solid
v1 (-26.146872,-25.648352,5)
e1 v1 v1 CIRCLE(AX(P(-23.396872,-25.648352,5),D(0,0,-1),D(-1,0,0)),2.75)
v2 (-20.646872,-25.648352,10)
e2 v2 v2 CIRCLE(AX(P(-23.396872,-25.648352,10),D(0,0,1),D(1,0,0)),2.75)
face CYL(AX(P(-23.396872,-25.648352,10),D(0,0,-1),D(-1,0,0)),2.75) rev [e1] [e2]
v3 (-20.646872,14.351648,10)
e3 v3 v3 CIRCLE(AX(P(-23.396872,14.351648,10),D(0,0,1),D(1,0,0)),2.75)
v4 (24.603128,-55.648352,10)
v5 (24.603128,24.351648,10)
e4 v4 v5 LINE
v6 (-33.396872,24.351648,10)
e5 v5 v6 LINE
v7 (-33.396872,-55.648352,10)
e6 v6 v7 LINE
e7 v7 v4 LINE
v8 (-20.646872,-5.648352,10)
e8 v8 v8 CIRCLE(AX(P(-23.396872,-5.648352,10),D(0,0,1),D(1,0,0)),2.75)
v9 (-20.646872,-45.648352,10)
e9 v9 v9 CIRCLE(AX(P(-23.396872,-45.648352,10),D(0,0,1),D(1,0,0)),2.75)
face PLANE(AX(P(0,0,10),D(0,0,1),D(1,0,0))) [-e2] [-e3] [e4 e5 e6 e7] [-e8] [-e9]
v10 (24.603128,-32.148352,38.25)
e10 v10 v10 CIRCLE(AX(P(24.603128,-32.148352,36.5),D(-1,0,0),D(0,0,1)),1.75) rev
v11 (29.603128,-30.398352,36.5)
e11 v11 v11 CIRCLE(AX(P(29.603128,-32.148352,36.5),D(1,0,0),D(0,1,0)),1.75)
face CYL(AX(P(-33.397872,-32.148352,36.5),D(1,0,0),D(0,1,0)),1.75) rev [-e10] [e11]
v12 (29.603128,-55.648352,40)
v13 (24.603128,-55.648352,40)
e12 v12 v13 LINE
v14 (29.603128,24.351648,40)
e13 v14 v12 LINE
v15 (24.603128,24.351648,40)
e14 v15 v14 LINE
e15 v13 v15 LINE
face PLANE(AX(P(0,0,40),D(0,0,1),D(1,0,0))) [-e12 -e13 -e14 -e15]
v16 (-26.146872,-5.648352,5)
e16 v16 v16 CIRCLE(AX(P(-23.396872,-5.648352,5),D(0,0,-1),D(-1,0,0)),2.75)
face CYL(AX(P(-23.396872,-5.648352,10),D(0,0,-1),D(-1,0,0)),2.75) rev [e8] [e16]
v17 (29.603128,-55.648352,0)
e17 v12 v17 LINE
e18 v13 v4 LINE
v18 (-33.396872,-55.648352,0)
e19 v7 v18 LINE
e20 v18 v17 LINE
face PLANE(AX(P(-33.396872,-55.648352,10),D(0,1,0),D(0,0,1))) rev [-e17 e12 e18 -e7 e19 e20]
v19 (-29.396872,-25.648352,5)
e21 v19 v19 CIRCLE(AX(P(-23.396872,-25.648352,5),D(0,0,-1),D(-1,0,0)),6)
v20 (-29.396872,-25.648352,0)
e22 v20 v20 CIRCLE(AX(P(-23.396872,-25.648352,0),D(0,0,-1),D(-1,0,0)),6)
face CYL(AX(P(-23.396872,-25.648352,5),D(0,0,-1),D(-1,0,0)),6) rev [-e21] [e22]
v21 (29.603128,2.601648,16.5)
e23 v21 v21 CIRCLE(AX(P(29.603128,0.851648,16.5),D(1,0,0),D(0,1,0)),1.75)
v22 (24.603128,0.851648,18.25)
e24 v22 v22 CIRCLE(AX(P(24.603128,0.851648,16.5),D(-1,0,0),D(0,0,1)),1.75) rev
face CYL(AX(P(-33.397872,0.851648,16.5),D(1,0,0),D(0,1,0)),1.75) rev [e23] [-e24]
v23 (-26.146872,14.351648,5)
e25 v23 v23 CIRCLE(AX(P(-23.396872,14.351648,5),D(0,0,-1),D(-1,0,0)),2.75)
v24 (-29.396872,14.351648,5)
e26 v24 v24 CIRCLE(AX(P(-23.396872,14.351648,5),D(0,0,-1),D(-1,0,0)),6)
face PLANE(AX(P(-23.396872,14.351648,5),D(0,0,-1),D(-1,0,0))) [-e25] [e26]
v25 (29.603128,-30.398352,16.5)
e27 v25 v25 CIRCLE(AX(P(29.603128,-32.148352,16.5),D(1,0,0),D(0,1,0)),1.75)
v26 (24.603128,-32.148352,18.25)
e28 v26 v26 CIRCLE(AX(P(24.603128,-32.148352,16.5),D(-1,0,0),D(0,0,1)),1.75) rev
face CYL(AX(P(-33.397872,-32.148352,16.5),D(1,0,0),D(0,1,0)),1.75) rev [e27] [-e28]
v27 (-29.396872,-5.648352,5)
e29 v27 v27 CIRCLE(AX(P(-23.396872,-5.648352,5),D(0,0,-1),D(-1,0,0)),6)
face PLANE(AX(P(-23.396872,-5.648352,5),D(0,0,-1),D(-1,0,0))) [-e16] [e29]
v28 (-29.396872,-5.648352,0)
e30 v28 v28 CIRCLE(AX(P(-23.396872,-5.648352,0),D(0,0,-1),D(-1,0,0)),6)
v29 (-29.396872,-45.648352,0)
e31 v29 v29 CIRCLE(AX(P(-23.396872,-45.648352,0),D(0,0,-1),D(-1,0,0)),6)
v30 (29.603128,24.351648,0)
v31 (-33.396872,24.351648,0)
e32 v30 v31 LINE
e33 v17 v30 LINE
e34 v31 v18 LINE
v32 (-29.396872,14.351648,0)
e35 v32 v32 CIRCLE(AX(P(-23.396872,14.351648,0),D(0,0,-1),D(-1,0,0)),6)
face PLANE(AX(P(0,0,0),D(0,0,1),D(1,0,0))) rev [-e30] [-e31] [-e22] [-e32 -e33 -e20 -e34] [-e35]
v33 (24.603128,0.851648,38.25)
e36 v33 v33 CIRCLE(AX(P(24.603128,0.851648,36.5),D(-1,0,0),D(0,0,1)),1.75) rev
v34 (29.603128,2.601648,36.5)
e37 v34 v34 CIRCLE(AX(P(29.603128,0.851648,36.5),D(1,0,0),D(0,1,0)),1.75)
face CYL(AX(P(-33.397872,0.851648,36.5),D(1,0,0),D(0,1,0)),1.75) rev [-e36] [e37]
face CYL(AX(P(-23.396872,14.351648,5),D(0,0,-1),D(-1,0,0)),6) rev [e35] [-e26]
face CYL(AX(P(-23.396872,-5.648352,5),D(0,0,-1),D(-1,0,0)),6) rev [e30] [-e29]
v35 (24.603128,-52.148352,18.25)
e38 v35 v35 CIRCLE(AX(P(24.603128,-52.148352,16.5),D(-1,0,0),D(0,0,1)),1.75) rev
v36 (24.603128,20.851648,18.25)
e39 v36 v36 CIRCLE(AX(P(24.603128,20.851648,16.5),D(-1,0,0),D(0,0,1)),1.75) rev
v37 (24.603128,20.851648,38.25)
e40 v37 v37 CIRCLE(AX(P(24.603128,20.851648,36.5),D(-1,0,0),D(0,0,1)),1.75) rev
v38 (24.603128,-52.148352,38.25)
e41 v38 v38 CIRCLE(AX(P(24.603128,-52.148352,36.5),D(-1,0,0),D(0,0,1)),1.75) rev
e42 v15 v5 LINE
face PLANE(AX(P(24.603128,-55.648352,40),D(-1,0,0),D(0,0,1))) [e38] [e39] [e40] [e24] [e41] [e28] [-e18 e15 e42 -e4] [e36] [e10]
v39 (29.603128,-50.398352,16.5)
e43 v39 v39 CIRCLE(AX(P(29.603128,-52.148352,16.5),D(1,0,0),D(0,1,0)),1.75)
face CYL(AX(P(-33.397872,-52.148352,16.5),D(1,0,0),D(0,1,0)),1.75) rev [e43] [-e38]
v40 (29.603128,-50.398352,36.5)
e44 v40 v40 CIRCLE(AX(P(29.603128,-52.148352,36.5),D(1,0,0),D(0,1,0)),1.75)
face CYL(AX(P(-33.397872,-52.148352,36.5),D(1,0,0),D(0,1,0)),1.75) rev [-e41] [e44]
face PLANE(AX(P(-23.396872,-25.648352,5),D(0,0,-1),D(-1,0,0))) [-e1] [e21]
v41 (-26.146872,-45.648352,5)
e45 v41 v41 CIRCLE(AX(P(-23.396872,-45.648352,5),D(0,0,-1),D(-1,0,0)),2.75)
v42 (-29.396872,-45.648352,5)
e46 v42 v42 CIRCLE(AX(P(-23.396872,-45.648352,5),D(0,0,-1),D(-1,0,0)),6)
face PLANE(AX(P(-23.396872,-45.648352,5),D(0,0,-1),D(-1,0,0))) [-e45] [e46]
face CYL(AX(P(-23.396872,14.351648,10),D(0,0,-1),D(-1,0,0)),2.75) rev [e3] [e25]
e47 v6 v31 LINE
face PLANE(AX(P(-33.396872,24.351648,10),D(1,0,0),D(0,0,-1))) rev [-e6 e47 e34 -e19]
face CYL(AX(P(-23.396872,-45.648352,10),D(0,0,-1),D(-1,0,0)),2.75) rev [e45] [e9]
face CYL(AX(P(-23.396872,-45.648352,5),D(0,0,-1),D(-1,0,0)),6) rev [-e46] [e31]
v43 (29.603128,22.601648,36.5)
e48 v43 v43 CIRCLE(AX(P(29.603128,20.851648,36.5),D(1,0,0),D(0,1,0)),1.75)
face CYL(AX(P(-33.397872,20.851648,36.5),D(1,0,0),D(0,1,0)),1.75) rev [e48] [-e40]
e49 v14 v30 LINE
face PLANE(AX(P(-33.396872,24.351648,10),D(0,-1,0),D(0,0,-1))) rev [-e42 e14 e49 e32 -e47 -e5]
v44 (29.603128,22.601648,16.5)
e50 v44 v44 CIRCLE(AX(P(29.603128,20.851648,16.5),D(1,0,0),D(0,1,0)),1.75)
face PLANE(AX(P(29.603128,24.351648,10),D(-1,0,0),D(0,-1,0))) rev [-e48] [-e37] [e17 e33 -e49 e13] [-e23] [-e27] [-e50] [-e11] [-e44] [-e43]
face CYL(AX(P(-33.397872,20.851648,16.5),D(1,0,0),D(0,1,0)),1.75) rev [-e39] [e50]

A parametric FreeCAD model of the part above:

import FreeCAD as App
import Part
import Sketcher
from FreeCAD import Vector


def add_polygon(sketch, points):
    """Adds a closed chain of lines whose ends are joined by coincident constraints."""
    first, n = sketch.GeometryCount, len(points)
    for a, b in zip(points, points[1:] + points[:1]):
        sketch.addGeometry(Part.LineSegment(App.Vector(*a, 0), App.Vector(*b, 0)), False)
    for i in range(n):
        sketch.addConstraint(Sketcher.Constraint("Coincident", first + i, 2, first + (i + 1) % n, 1))

doc = App.newDocument("Part")
params = doc.addObject("Spreadsheet::Sheet", "Params")
for row, (alias, value) in enumerate([
    ("sketch1_diameter", "5.5 mm"),
    ("sketch1_width", "63 mm"),
    ("sketch1_height", "80 mm"),
    ("pad1_length", "10 mm"),
    ("sketch2_width", "5 mm"),
    ("sketch2_height", "80 mm"),
    ("pad2_length", "30 mm"),
    ("sketch3_diameter", "3.5 mm"),
    ("sketch4_diameter", "3.5 mm"),
    ("sketch5_diameter", "3.5 mm"),
    ("sketch6_diameter", "3.5 mm"),
    ("sketch7_diameter", "3.5 mm"),
    ("sketch8_diameter", "3.5 mm"),
    ("sketch9_diameter", "3.5 mm"),
    ("sketch10_diameter", "3.5 mm"),
    ("sketch11_diameter", "12 mm"),
    ("pocket9_length", "5 mm"),
], start=1):
    params.set(f"A{row}", alias)
    params.set(f"B{row}", "=" + value)
    params.setAlias(f"B{row}", alias)

body = doc.addObject("PartDesign::Body", "Body")

# Sketch on XY plane
sketch1 = body.newObject("Sketcher::SketchObject", "Sketch")
sketch1.AttachmentSupport = (doc.getObject("XY_Plane"), [""])
sketch1.MapMode = "FlatFace"
add_polygon(sketch1, [(-33.4, 24.4), (-33.4, -55.6), (29.6, -55.6), (29.6, 24.4)])  # lines 0-3
sketch1.addGeometry(Part.Circle(Vector(-23.4, -45.6, 0), Vector(0, 0, 1), 2.8), False)  # 4
sketch1.addGeometry(Part.Circle(Vector(-23.4, -25.6, 0), Vector(0, 0, 1), 2.8), False)  # 5
sketch1.addGeometry(Part.Circle(Vector(-23.4, -5.6, 0), Vector(0, 0, 1), 2.8), False)  # 6
sketch1.addGeometry(Part.Circle(Vector(-23.4, 14.4, 0), Vector(0, 0, 1), 2.8), False)  # 7
sketch1.addConstraint([
    Sketcher.Constraint("Vertical", 0),
    Sketcher.Constraint("Horizontal", 1),
    Sketcher.Constraint("Vertical", 2),
    Sketcher.Constraint("Horizontal", 3),
    Sketcher.Constraint("Equal", 4, 5),
    Sketcher.Constraint("Equal", 5, 6),
    Sketcher.Constraint("Equal", 6, 7),
    Sketcher.Constraint("Vertical", 4, 3, 5, 3),
    Sketcher.Constraint("Vertical", 5, 3, 6, 3),
    Sketcher.Constraint("Vertical", 6, 3, 7, 3),
    Sketcher.Constraint("Diameter", 4, 5.5),
    Sketcher.Constraint("DistanceX", 1, 1, 1, 2, 63.0),
    Sketcher.Constraint("DistanceY", 0, 2, 0, 1, 80.0),
    Sketcher.Constraint("DistanceY", 4, 3, 5, 3, 20.0),
    Sketcher.Constraint("DistanceY", 5, 3, 6, 3, 20.0),
    Sketcher.Constraint("DistanceY", 6, 3, 7, 3, 20.0),
    Sketcher.Constraint("DistanceX", 0, 2, 4, 3, 10.0),
    Sketcher.Constraint("DistanceY", 0, 2, 4, 3, 10.0),
    Sketcher.Constraint("DistanceY", 4, 3, -1, 1, 45.648352),
    Sketcher.Constraint("DistanceX", 4, 3, -1, 1, 23.396872),
])
sketch1.setExpression("Constraints[14]", "Params.sketch1_diameter")
sketch1.setExpression("Constraints[15]", "Params.sketch1_width")
sketch1.setExpression("Constraints[16]", "Params.sketch1_height")
pad1 = body.newObject("PartDesign::Pad", "Pad")
pad1.Profile = sketch1
pad1.setExpression("Length", "Params.pad1_length")

# Sketch on XY plane
sketch2 = body.newObject("Sketcher::SketchObject", "Sketch001")
sketch2.AttachmentSupport = (doc.getObject("XY_Plane"), [""])
sketch2.MapMode = "FlatFace"
sketch2.AttachmentOffset = App.Placement(Vector(0, 0, 10), App.Rotation())
add_polygon(sketch2, [(30, 24), (30, -56), (25, -56), (25, 24)])  # lines 0-3
sketch2.addConstraint([
    Sketcher.Constraint("Vertical", 0),
    Sketcher.Constraint("Horizontal", 1),
    Sketcher.Constraint("Vertical", 2),
    Sketcher.Constraint("Horizontal", 3),
    Sketcher.Constraint("DistanceX", 1, 2, 1, 1, 5.0),
    Sketcher.Constraint("DistanceY", 0, 2, 0, 1, 80.0),
    Sketcher.Constraint("DistanceY", 0, 2, -1, 1, 55.648352),
    Sketcher.Constraint("DistanceX", -1, 1, 0, 2, 29.603128),
])
sketch2.setExpression("Constraints[8]", "Params.sketch2_width")
sketch2.setExpression("Constraints[9]", "Params.sketch2_height")
pad2 = body.newObject("PartDesign::Pad", "Pad001")
pad2.Profile = sketch2
pad2.setExpression("Length", "Params.pad2_length")

# Sketch on YZ plane
sketch3 = body.newObject("Sketcher::SketchObject", "Sketch002")
sketch3.AttachmentSupport = (doc.getObject("YZ_Plane"), [""])
sketch3.MapMode = "FlatFace"
sketch3.AttachmentOffset = App.Placement(Vector(0, 0, 29.603128), App.Rotation())
sketch3.addGeometry(Part.Circle(Vector(-52.1, 36.5, 0), Vector(0, 0, 1), 1.8), False)
sketch3.addConstraint([
    Sketcher.Constraint("Diameter", 0, 3.5),
    Sketcher.Constraint("DistanceY", -1, 1, 0, 3, 36.5),
    Sketcher.Constraint("DistanceX", 0, 3, -1, 1, 52.148352),
])
sketch3.setExpression("Constraints[0]", "Params.sketch3_diameter")
pocket1 = body.newObject("PartDesign::Pocket", "Pocket")
pocket1.Profile = sketch3
pocket1.Type = "UpToFirst"

# Sketch on YZ plane
sketch4 = body.newObject("Sketcher::SketchObject", "Sketch003")
sketch4.AttachmentSupport = (doc.getObject("YZ_Plane"), [""])
sketch4.MapMode = "FlatFace"
sketch4.AttachmentOffset = App.Placement(Vector(0, 0, 29.603128), App.Rotation())
sketch4.addGeometry(Part.Circle(Vector(-32.1, 36.5, 0), Vector(0, 0, 1), 1.8), False)
sketch4.addConstraint([
    Sketcher.Constraint("Diameter", 0, 3.5),
    Sketcher.Constraint("DistanceY", -1, 1, 0, 3, 36.5),
    Sketcher.Constraint("DistanceX", 0, 3, -1, 1, 32.148352),
])
sketch4.setExpression("Constraints[0]", "Params.sketch4_diameter")
pocket2 = body.newObject("PartDesign::Pocket", "Pocket001")
pocket2.Profile = sketch4
pocket2.Type = "UpToFirst"

# Sketch on YZ plane
sketch5 = body.newObject("Sketcher::SketchObject", "Sketch004")
sketch5.AttachmentSupport = (doc.getObject("YZ_Plane"), [""])
sketch5.MapMode = "FlatFace"
sketch5.AttachmentOffset = App.Placement(Vector(0, 0, 29.603128), App.Rotation())
sketch5.addGeometry(Part.Circle(Vector(-32.1, 16.5, 0), Vector(0, 0, 1), 1.8), False)
sketch5.addConstraint([
    Sketcher.Constraint("Diameter", 0, 3.5),
    Sketcher.Constraint("DistanceY", -1, 1, 0, 3, 16.5),
    Sketcher.Constraint("DistanceX", 0, 3, -1, 1, 32.148352),
])
sketch5.setExpression("Constraints[0]", "Params.sketch5_diameter")
pocket3 = body.newObject("PartDesign::Pocket", "Pocket002")
pocket3.Profile = sketch5
pocket3.Type = "UpToFirst"

# Sketch on YZ plane
sketch6 = body.newObject("Sketcher::SketchObject", "Sketch005")
sketch6.AttachmentSupport = (doc.getObject("YZ_Plane"), [""])
sketch6.MapMode = "FlatFace"
sketch6.AttachmentOffset = App.Placement(Vector(0, 0, 29.603128), App.Rotation())
sketch6.addGeometry(Part.Circle(Vector(-52.1, 16.5, 0), Vector(0, 0, 1), 1.8), False)
sketch6.addConstraint([
    Sketcher.Constraint("Diameter", 0, 3.5),
    Sketcher.Constraint("DistanceY", -1, 1, 0, 3, 16.5),
    Sketcher.Constraint("DistanceX", 0, 3, -1, 1, 52.148352),
])
sketch6.setExpression("Constraints[0]", "Params.sketch6_diameter")
pocket4 = body.newObject("PartDesign::Pocket", "Pocket003")
pocket4.Profile = sketch6
pocket4.Type = "UpToFirst"

# Sketch on YZ plane
sketch7 = body.newObject("Sketcher::SketchObject", "Sketch006")
sketch7.AttachmentSupport = (doc.getObject("YZ_Plane"), [""])
sketch7.MapMode = "FlatFace"
sketch7.AttachmentOffset = App.Placement(Vector(0, 0, 29.603128), App.Rotation())
sketch7.addGeometry(Part.Circle(Vector(0.9, 36.5, 0), Vector(0, 0, 1), 1.8), False)
sketch7.addConstraint([
    Sketcher.Constraint("Diameter", 0, 3.5),
    Sketcher.Constraint("DistanceY", -1, 1, 0, 3, 36.5),
    Sketcher.Constraint("DistanceX", -1, 1, 0, 3, 0.851648),
])
sketch7.setExpression("Constraints[0]", "Params.sketch7_diameter")
pocket5 = body.newObject("PartDesign::Pocket", "Pocket004")
pocket5.Profile = sketch7
pocket5.Type = "UpToFirst"

# Sketch on YZ plane
sketch8 = body.newObject("Sketcher::SketchObject", "Sketch007")
sketch8.AttachmentSupport = (doc.getObject("YZ_Plane"), [""])
sketch8.MapMode = "FlatFace"
sketch8.AttachmentOffset = App.Placement(Vector(0, 0, 29.603128), App.Rotation())
sketch8.addGeometry(Part.Circle(Vector(20.9, 36.5, 0), Vector(0, 0, 1), 1.8), False)
sketch8.addConstraint([
    Sketcher.Constraint("Diameter", 0, 3.5),
    Sketcher.Constraint("DistanceY", -1, 1, 0, 3, 36.5),
    Sketcher.Constraint("DistanceX", -1, 1, 0, 3, 20.851648),
])
sketch8.setExpression("Constraints[0]", "Params.sketch8_diameter")
pocket6 = body.newObject("PartDesign::Pocket", "Pocket005")
pocket6.Profile = sketch8
pocket6.Type = "UpToFirst"

# Sketch on YZ plane
sketch9 = body.newObject("Sketcher::SketchObject", "Sketch008")
sketch9.AttachmentSupport = (doc.getObject("YZ_Plane"), [""])
sketch9.MapMode = "FlatFace"
sketch9.AttachmentOffset = App.Placement(Vector(0, 0, 29.603128), App.Rotation())
sketch9.addGeometry(Part.Circle(Vector(20.9, 16.5, 0), Vector(0, 0, 1), 1.8), False)
sketch9.addConstraint([
    Sketcher.Constraint("Diameter", 0, 3.5),
    Sketcher.Constraint("DistanceY", -1, 1, 0, 3, 16.5),
    Sketcher.Constraint("DistanceX", -1, 1, 0, 3, 20.851648),
])
sketch9.setExpression("Constraints[0]", "Params.sketch9_diameter")
pocket7 = body.newObject("PartDesign::Pocket", "Pocket006")
pocket7.Profile = sketch9
pocket7.Type = "UpToFirst"

# Sketch on YZ plane
sketch10 = body.newObject("Sketcher::SketchObject", "Sketch009")
sketch10.AttachmentSupport = (doc.getObject("YZ_Plane"), [""])
sketch10.MapMode = "FlatFace"
sketch10.AttachmentOffset = App.Placement(Vector(0, 0, 29.603128), App.Rotation())
sketch10.addGeometry(Part.Circle(Vector(0.9, 16.5, 0), Vector(0, 0, 1), 1.8), False)
sketch10.addConstraint([
    Sketcher.Constraint("Diameter", 0, 3.5),
    Sketcher.Constraint("DistanceY", -1, 1, 0, 3, 16.5),
    Sketcher.Constraint("DistanceX", -1, 1, 0, 3, 0.851648),
])
sketch10.setExpression("Constraints[0]", "Params.sketch10_diameter")
pocket8 = body.newObject("PartDesign::Pocket", "Pocket007")
pocket8.Profile = sketch10
pocket8.Type = "UpToFirst"

# Sketch on XY plane
sketch11 = body.newObject("Sketcher::SketchObject", "Sketch010")
sketch11.AttachmentSupport = (doc.getObject("XY_Plane"), [""])
sketch11.MapMode = "FlatFace"
sketch11.addGeometry([
    Part.Circle(Vector(-23, -46, 0), Vector(0, 0, 1), 6),
    Part.Circle(Vector(-23, -26, 0), Vector(0, 0, 1), 6),
    Part.Circle(Vector(-23, -6, 0), Vector(0, 0, 1), 6),
    Part.Circle(Vector(-23, 14, 0), Vector(0, 0, 1), 6),
], False)
sketch11.addConstraint([
    Sketcher.Constraint("Equal", 0, 1),
    Sketcher.Constraint("Equal", 1, 2),
    Sketcher.Constraint("Equal", 2, 3),
    Sketcher.Constraint("Vertical", 0, 3, 1, 3),
    Sketcher.Constraint("Vertical", 1, 3, 2, 3),
    Sketcher.Constraint("Vertical", 2, 3, 3, 3),
    Sketcher.Constraint("Diameter", 0, 12.0),
    Sketcher.Constraint("DistanceY", 0, 3, 1, 3, 20.0),
    Sketcher.Constraint("DistanceY", 1, 3, 2, 3, 20.0),
    Sketcher.Constraint("DistanceY", 2, 3, 3, 3, 20.0),
    Sketcher.Constraint("DistanceY", 0, 3, -1, 1, 45.648352),
    Sketcher.Constraint("DistanceX", 0, 3, -1, 1, 23.396872),
])
sketch11.setExpression("Constraints[6]", "Params.sketch11_diameter")
pocket9 = body.newObject("PartDesign::Pocket", "Pocket008")
pocket9.Profile = sketch11
pocket9.setExpression("Length", "Params.pocket9_length")
pocket9.Reversed = True

doc.recompute()
